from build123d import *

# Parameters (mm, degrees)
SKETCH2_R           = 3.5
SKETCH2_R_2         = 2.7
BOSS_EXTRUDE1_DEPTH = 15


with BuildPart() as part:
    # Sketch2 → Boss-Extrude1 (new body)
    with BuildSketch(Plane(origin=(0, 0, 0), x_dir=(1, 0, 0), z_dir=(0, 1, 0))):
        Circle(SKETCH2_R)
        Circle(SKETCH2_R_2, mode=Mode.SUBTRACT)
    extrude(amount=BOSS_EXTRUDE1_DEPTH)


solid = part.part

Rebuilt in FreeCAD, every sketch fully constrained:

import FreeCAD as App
import Part
import Sketcher
from FreeCAD import Vector

doc = App.newDocument("Part")
body = doc.addObject("PartDesign::Body", "Body")

# Sketch on XZ plane
sketch1 = body.newObject("Sketcher::SketchObject", "Sketch")
sketch1.AttachmentSupport = (doc.getObject("XZ_Plane"), [""])
sketch1.MapMode = "FlatFace"
sketch1.addGeometry([
    Part.Circle(Vector(0, 0, 0), Vector(0, 0, 1), 3.5),
    Part.Circle(Vector(0, 0, 0), Vector(0, 0, 1), 2.7),
], False)
sketch1.addConstraint([
    Sketcher.Constraint("Coincident", 0, 3, -1, 1),
    Sketcher.Constraint("Coincident", 1, 3, -1, 1),
    Sketcher.Constraint("Diameter", 0, 7.0),
    Sketcher.Constraint("Diameter", 1, 5.4),
])
pad1 = body.newObject("PartDesign::Pad", "Pad")
pad1.Profile = sketch1
pad1.Length = 15
pad1.Reversed = True

doc.recompute()
